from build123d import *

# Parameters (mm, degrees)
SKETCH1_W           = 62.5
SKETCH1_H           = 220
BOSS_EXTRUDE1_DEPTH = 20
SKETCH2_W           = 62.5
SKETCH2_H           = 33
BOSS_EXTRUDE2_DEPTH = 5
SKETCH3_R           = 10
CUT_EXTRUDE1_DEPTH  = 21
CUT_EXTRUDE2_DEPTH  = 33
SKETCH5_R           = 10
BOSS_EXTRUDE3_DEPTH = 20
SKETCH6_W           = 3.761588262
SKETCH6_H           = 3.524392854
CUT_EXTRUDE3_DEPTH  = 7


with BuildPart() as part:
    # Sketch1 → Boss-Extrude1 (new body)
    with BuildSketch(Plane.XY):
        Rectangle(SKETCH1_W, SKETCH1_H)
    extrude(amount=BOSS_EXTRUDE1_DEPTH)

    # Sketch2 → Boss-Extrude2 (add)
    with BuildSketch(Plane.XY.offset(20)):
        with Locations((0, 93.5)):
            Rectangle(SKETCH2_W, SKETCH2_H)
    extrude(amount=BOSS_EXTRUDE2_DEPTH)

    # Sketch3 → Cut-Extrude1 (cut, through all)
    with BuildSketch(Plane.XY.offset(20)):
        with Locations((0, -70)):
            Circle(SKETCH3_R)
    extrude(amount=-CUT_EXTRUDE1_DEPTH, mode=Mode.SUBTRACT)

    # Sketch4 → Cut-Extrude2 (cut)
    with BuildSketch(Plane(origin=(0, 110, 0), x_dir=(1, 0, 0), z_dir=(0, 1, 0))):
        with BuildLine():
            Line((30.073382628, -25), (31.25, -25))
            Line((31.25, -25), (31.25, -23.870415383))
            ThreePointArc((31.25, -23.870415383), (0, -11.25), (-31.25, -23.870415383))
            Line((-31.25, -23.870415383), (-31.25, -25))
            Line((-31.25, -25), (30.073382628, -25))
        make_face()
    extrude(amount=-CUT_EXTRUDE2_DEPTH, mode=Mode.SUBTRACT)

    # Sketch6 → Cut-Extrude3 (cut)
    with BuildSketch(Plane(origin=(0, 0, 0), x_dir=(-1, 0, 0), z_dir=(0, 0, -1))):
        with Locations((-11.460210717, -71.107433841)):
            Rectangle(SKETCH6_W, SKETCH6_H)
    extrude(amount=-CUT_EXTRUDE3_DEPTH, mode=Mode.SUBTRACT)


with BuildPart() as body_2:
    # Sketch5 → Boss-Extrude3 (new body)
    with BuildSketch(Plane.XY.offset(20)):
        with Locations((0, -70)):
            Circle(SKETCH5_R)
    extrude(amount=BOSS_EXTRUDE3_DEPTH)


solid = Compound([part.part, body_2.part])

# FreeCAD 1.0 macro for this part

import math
import FreeCAD as App
import Part
import Sketcher
from FreeCAD import Vector
Q = App.Units.Quantity


def add_polygon(sketch, points):
    """Adds a closed chain of lines whose ends are joined by coincident constraints."""
    first, n = sketch.GeometryCount, len(points)
    for a, b in zip(points, points[1:] + points[:1]):
        sketch.addGeometry(Part.LineSegment(App.Vector(*a, 0), App.Vector(*b, 0)), False)
    for i in range(n):
        sketch.addConstraint(Sketcher.Constraint("Coincident", first + i, 2, first + (i + 1) % n, 1))

doc = App.newDocument("Part")
body = doc.addObject("PartDesign::Body", "Body")

# Sketch on XY plane
sketch1 = body.newObject("Sketcher::SketchObject", "Sketch")
sketch1.AttachmentSupport = (doc.getObject("XY_Plane"), [""])
sketch1.MapMode = "FlatFace"
add_polygon(sketch1, [(-31, 110), (-31, -110), (31, -110), (31, 110)])  # lines 0-3
sketch1.addConstraint(Sketcher.Constraint("Vertical", 0))
sketch1.addConstraint(Sketcher.Constraint("Horizontal", 1))
sketch1.addConstraint(Sketcher.Constraint("Vertical", 2))
sketch1.addConstraint(Sketcher.Constraint("Horizontal", 3))
sketch1.addConstraint(Sketcher.Constraint("Symmetric", 0, 2, 2, 2, -1, 1))
sketch1.addConstraint(Sketcher.Constraint("DistanceY", 0, 2, 0, 1, Q("220 mm")))
sketch1.addConstraint(Sketcher.Constraint("DistanceX", 1, 1, 1, 2, Q("62.5 mm")))
pad1 = body.newObject("PartDesign::Pad", "Pad")
pad1.Profile = sketch1
pad1.Length = 20

# Sketch on XY plane
sketch2 = body.newObject("Sketcher::SketchObject", "Sketch001")
sketch2.AttachmentSupport = (doc.getObject("XY_Plane"), [""])
sketch2.MapMode = "FlatFace"
sketch2.AttachmentOffset = App.Placement(Vector(0, 0, 20), App.Rotation())
add_polygon(sketch2, [(-31, 110), (-31, 77), (31, 77), (31, 110)])  # lines 0-3
sketch2.addConstraint(Sketcher.Constraint("Vertical", 0))
sketch2.addConstraint(Sketcher.Constraint("Horizontal", 1))
sketch2.addConstraint(Sketcher.Constraint("Vertical", 2))
sketch2.addConstraint(Sketcher.Constraint("Horizontal", 3))
sketch2.addConstraint(Sketcher.Constraint("DistanceY", 0, 2, 0, 1, Q("33 mm")))
sketch2.addConstraint(Sketcher.Constraint("DistanceX", 1, 1, 1, 2, Q("62.5 mm")))
sketch2.addConstraint(Sketcher.Constraint("DistanceY", -1, 1, 0, 2, Q("77 mm")))
sketch2.addConstraint(Sketcher.Constraint("DistanceX", 0, 2, -1, 1, Q("31.25 mm")))
pad2 = body.newObject("PartDesign::Pad", "Pad001")
pad2.Profile = sketch2
pad2.Length = 5

# Sketch on XY plane
sketch3 = body.newObject("Sketcher::SketchObject", "Sketch002")
sketch3.AttachmentSupport = (doc.getObject("XY_Plane"), [""])
sketch3.MapMode = "FlatFace"
sketch3.AttachmentOffset = App.Placement(Vector(0, 0, 20), App.Rotation())
sketch3.addGeometry(Part.Circle(Vector(0, -70, 0), Vector(0, 0, 1), 10), False)
sketch3.addConstraint(Sketcher.Constraint("PointOnObject", 0, 3, -2))
sketch3.addConstraint(Sketcher.Constraint("Diameter", 0, Q("20 mm")))
sketch3.addConstraint(Sketcher.Constraint("DistanceY", 0, 3, -1, 1, Q("70 mm")))
pocket1 = body.newObject("PartDesign::Pocket", "Pocket")
pocket1.Profile = sketch3
pocket1.Type = "ThroughAll"

# Sketch on XZ plane
sketch4 = body.newObject("Sketcher::SketchObject", "Sketch003")
sketch4.AttachmentSupport = (doc.getObject("XZ_Plane"), [""])
sketch4.MapMode = "FlatFace"
sketch4.AttachmentOffset = App.Placement(Vector(0, 0, -110), App.Rotation())
sketch4.addGeometry(Part.LineSegment(Vector(31.2, 25, 0), Vector(31.2, 23.9, 0)), False)
sketch4.addGeometry(Part.ArcOfCircle(Part.Circle(Vector(0, 56.2, 0), Vector(0, 0, 1), 45), math.radians(-134), math.radians(-46)), False)
sketch4.addGeometry(Part.LineSegment(Vector(-31.2, 23.9, 0), Vector(-31.2, 25, 0)), False)
sketch4.addGeometry(Part.LineSegment(Vector(-31.2, 25, 0), Vector(31.2, 25, 0)), False)
sketch4.addConstraint(Sketcher.Constraint("Coincident", 0, 2, 1, 2))
sketch4.addConstraint(Sketcher.Constraint("Coincident", 1, 1, 2, 1))
sketch4.addConstraint(Sketcher.Constraint("Coincident", 2, 2, 3, 1))
sketch4.addConstraint(Sketcher.Constraint("Coincident", 3, 2, 0, 1))
sketch4.addConstraint(Sketcher.Constraint("Vertical", 0))
sketch4.addConstraint(Sketcher.Constraint("Vertical", 2))
sketch4.addConstraint(Sketcher.Constraint("Horizontal", 3))
sketch4.addConstraint(Sketcher.Constraint("Symmetric", 0, 2, 1, 1, -2))
sketch4.addConstraint(Sketcher.Constraint("Radius", 1, Q("45 mm")))
sketch4.addConstraint(Sketcher.Constraint("DistanceX", 3, 1, 3, 2, Q("62.5 mm")))
sketch4.addConstraint(Sketcher.Constraint("DistanceY", -1, 1, 2, 2, Q("25 mm")))
sketch4.addConstraint(Sketcher.Constraint("DistanceY", -1, 1, 1, 3, Q("56.25 mm")))
pocket2 = body.newObject("PartDesign::Pocket", "Pocket001")
pocket2.Profile = sketch4
pocket2.Length = 33
pocket2.Reversed = True

# Sketch on XY plane
sketch5 = body.newObject("Sketcher::SketchObject", "Sketch004")
sketch5.AttachmentSupport = (doc.getObject("XY_Plane"), [""])
sketch5.MapMode = "FlatFace"
add_polygon(sketch5, [(13.3, -69.3), (13.3, -72.9), (9.6, -72.9), (9.6, -69.3)])  # lines 0-3
sketch5.addConstraint(Sketcher.Constraint("Vertical", 0))
sketch5.addConstraint(Sketcher.Constraint("Horizontal", 1))
sketch5.addConstraint(Sketcher.Constraint("Vertical", 2))
sketch5.addConstraint(Sketcher.Constraint("Horizontal", 3))
sketch5.addConstraint(Sketcher.Constraint("DistanceX", 1, 2, 1, 1, Q("3.761588 mm")))
sketch5.addConstraint(Sketcher.Constraint("DistanceY", 0, 2, 0, 1, Q("3.524393 mm")))
sketch5.addConstraint(Sketcher.Constraint("DistanceY", 0, 2, -1, 1, Q("72.86963 mm")))
sketch5.addConstraint(Sketcher.Constraint("DistanceX", -1, 1, 0, 2, Q("13.341005 mm")))
pocket3 = body.newObject("PartDesign::Pocket", "Pocket002")
pocket3.Profile = sketch5
pocket3.Length = 7
pocket3.Reversed = True
body2 = doc.addObject("PartDesign::Body", "Body001")

# Sketch on XY plane
sketch6 = body2.newObject("Sketcher::SketchObject", "Sketch005")
sketch6.AttachmentSupport = (doc.getObject("XY_Plane001"), [""])
sketch6.MapMode = "FlatFace"
sketch6.AttachmentOffset = App.Placement(Vector(0, 0, 20), App.Rotation())
sketch6.addGeometry(Part.Circle(Vector(0, -70, 0), Vector(0, 0, 1), 10), False)
sketch6.addConstraint(Sketcher.Constraint("PointOnObject", 0, 3, -2))
sketch6.addConstraint(Sketcher.Constraint("Diameter", 0, Q("20 mm")))
sketch6.addConstraint(Sketcher.Constraint("DistanceY", 0, 3, -1, 1, Q("70 mm")))
pad3 = body2.newObject("PartDesign::Pad", "Pad002")
pad3.Profile = sketch6
pad3.Length = 20

doc.recompute()
